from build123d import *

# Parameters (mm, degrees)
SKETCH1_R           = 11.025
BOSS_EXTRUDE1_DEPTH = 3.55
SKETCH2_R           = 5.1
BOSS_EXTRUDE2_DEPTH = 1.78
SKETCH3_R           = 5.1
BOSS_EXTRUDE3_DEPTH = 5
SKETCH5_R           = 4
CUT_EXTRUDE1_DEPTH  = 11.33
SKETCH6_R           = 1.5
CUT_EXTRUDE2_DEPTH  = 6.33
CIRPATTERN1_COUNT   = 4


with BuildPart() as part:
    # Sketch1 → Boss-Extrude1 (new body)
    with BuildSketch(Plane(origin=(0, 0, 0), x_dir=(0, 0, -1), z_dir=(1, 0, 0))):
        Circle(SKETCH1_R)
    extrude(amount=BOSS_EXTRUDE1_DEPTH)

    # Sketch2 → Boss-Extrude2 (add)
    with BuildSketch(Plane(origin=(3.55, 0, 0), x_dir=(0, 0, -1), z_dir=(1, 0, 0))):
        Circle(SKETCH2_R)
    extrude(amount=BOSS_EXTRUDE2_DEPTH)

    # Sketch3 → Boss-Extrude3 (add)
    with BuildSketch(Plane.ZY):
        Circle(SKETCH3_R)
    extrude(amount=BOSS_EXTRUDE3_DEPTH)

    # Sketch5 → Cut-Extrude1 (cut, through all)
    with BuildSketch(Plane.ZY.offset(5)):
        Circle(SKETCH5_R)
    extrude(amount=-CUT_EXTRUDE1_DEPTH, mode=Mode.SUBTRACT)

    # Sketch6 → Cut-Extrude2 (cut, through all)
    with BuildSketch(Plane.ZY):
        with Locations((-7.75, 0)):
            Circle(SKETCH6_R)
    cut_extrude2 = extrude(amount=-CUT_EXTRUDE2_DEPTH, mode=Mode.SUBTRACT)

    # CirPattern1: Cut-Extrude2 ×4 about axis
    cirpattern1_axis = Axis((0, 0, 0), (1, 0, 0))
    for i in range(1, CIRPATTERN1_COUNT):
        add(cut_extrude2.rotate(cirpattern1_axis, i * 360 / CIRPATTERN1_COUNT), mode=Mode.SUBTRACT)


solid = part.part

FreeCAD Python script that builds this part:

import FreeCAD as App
import Part
import Sketcher
from FreeCAD import Vector
Q = App.Units.Quantity

doc = App.newDocument("Part")
params = doc.addObject("Spreadsheet::Sheet", "Params")
for row, (alias, value) in enumerate([
    ("sketch1_diameter", "22.05 mm"),
    ("pad1_length", "3.55 mm"),
    ("sketch2_diameter", "10.2 mm"),
    ("pad2_length", "1.78 mm"),
    ("sketch3_diameter", "10.2 mm"),
    ("pad3_length", "5 mm"),
    ("sketch4_diameter", "8 mm"),
    ("sketch5_diameter", "3 mm"),
], start=1):
    params.set(f"A{row}", alias)
    params.set(f"B{row}", "=" + value)
    params.setAlias(f"B{row}", alias)

body = doc.addObject("PartDesign::Body", "Body")

# Sketch on YZ plane
sketch1 = body.newObject("Sketcher::SketchObject", "Sketch")
sketch1.AttachmentSupport = (doc.getObject("YZ_Plane"), [""])
sketch1.MapMode = "FlatFace"
sketch1.addGeometry(Part.Circle(Vector(0, 0, 0), Vector(0, 0, 1), 11), False)
sketch1.addConstraint([
    Sketcher.Constraint("Coincident", 0, 3, -1, 1),
    Sketcher.Constraint("Diameter", 0, Q("22.05 mm")),
])
sketch1.setExpression("Constraints[1]", "Params.sketch1_diameter")
pad1 = body.newObject("PartDesign::Pad", "Pad")
pad1.Profile = sketch1
pad1.setExpression("Length", "Params.pad1_length")

# Sketch on YZ plane
sketch2 = body.newObject("Sketcher::SketchObject", "Sketch001")
sketch2.AttachmentSupport = (doc.getObject("YZ_Plane"), [""])
sketch2.MapMode = "FlatFace"
sketch2.AttachmentOffset = App.Placement(Vector(0, 0, 3.55), App.Rotation())
sketch2.addGeometry(Part.Circle(Vector(0, 0, 0), Vector(0, 0, 1), 5), False)
sketch2.addConstraint([
    Sketcher.Constraint("Coincident", 0, 3, -1, 1),
    Sketcher.Constraint("Diameter", 0, Q("10.2 mm")),
])
sketch2.setExpression("Constraints[1]", "Params.sketch2_diameter")
pad2 = body.newObject("PartDesign::Pad", "Pad001")
pad2.Profile = sketch2
pad2.setExpression("Length", "Params.pad2_length")

# Sketch on YZ plane
sketch3 = body.newObject("Sketcher::SketchObject", "Sketch002")
sketch3.AttachmentSupport = (doc.getObject("YZ_Plane"), [""])
sketch3.MapMode = "FlatFace"
sketch3.addGeometry(Part.Circle(Vector(0, 0, 0), Vector(0, 0, 1), 5), False)
sketch3.addConstraint([
    Sketcher.Constraint("Coincident", 0, 3, -1, 1),
    Sketcher.Constraint("Diameter", 0, Q("10.2 mm")),
])
sketch3.setExpression("Constraints[1]", "Params.sketch3_diameter")
pad3 = body.newObject("PartDesign::Pad", "Pad002")
pad3.Profile = sketch3
pad3.setExpression("Length", "Params.pad3_length")
pad3.Reversed = True

# Sketch on YZ plane
sketch4 = body.newObject("Sketcher::SketchObject", "Sketch003")
sketch4.AttachmentSupport = (doc.getObject("YZ_Plane"), [""])
sketch4.MapMode = "FlatFace"
sketch4.AttachmentOffset = App.Placement(Vector(0, 0, -5), App.Rotation())
sketch4.addGeometry(Part.Circle(Vector(0, 0, 0), Vector(0, 0, 1), 4), False)
sketch4.addConstraint([
    Sketcher.Constraint("Coincident", 0, 3, -1, 1),
    Sketcher.Constraint("Diameter", 0, Q("8 mm")),
])
sketch4.setExpression("Constraints[1]", "Params.sketch4_diameter")
pocket1 = body.newObject("PartDesign::Pocket", "Pocket")
pocket1.Profile = sketch4
pocket1.Type = "ThroughAll"
pocket1.Reversed = True

# Sketch on YZ plane
sketch5 = body.newObject("Sketcher::SketchObject", "Sketch004")
sketch5.AttachmentSupport = (doc.getObject("YZ_Plane"), [""])
sketch5.MapMode = "FlatFace"
sketch5.addGeometry(Part.Circle(Vector(0, -7.8, 0), Vector(0, 0, 1), 1.5), False)
sketch5.addConstraint([
    Sketcher.Constraint("PointOnObject", 0, 3, -2),
    Sketcher.Constraint("Diameter", 0, Q("3 mm")),
    Sketcher.Constraint("DistanceY", 0, 3, -1, 1, Q("7.75 mm")),
])
sketch5.setExpression("Constraints[1]", "Params.sketch5_diameter")
pocket2 = body.newObject("PartDesign::Pocket", "Pocket001")
pocket2.Profile = sketch5
pocket2.Type = "ThroughAll"
pocket2.Reversed = True
doc.recompute()

polarpattern = body.newObject("PartDesign::PolarPattern", "PolarPattern")
polarpattern.Originals = [pocket2]
polarpattern.Axis = (doc.getObject("X_Axis"), [""])
polarpattern.Angle = 360
polarpattern.Occurrences = 4
body.Tip = polarpattern

doc.recompute()
